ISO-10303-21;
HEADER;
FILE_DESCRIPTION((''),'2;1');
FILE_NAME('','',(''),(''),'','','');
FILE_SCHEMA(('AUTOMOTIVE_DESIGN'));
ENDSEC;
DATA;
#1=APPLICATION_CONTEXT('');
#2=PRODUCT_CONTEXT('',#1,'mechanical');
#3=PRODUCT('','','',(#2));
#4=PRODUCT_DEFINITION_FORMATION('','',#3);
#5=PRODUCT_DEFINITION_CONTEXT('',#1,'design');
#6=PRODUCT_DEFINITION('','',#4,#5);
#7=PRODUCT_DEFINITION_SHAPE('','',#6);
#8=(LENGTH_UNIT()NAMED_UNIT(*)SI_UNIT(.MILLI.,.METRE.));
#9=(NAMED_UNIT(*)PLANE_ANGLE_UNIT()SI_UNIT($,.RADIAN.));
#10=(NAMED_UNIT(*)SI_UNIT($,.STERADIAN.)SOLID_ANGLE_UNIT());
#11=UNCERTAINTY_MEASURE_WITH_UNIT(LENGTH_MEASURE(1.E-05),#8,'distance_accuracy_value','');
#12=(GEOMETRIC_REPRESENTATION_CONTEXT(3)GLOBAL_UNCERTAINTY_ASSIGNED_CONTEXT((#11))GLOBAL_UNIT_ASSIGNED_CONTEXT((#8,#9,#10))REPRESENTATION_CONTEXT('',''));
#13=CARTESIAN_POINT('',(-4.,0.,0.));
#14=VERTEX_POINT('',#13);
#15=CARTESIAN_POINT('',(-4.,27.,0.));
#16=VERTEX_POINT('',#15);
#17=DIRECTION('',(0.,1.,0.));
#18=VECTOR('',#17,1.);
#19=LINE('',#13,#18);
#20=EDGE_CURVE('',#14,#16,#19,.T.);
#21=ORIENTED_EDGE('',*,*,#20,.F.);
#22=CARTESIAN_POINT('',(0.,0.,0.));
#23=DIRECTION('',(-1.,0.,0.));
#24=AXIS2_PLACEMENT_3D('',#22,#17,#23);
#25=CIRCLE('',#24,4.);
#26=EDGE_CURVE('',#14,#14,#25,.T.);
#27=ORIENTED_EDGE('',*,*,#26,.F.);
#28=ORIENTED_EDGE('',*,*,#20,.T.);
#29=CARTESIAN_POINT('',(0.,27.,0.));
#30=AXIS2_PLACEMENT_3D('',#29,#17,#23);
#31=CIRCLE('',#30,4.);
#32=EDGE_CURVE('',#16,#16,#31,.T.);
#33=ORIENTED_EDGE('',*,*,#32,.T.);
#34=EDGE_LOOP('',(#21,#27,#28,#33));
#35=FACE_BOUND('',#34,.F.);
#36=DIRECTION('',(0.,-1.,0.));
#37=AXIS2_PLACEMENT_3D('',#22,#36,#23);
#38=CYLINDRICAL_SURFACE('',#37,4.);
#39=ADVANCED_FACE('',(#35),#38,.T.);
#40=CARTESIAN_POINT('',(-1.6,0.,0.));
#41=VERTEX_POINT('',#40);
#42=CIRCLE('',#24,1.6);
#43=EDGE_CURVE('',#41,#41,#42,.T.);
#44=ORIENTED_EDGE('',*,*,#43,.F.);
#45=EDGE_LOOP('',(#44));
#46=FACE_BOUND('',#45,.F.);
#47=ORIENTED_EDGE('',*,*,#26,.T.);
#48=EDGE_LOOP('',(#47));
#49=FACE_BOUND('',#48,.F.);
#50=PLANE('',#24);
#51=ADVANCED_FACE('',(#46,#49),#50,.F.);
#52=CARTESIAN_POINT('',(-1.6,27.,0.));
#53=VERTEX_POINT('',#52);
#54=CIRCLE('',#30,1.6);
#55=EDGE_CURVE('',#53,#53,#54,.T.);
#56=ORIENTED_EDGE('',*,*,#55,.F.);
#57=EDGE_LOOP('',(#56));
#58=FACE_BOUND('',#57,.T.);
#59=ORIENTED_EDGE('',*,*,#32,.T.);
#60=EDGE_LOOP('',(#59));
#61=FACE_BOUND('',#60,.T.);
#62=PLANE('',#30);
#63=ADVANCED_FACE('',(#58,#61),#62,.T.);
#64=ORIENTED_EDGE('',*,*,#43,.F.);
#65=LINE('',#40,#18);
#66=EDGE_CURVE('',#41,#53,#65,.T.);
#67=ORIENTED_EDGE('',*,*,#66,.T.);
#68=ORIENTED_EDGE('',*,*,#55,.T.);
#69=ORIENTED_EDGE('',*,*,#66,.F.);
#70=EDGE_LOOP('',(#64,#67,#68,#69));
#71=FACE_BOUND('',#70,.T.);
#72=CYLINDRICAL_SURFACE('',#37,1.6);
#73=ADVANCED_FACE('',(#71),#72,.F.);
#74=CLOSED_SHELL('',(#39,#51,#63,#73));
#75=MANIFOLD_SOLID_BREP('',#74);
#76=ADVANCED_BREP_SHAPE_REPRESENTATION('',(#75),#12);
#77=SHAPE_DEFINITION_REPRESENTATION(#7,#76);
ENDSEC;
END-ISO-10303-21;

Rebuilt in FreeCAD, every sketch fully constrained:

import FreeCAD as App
import Part
import Sketcher
Q = App.Units.Quantity

doc = App.newDocument("Part")
body = doc.addObject("PartDesign::Body", "Body")

# Sketch on XZ plane
sketch1 = doc.addObject("Sketcher::SketchObject", "Sketch")
body.addObject(sketch1)
sketch1.AttachmentSupport = (doc.XZ_Plane, [""])
sketch1.MapMode = "FlatFace"
sketch1.addGeometry(Part.Circle(App.Vector(0, 0, 0), App.Vector(0, 0, 1), 4), False)
sketch1.addGeometry(Part.Circle(App.Vector(0, 0, 0), App.Vector(0, 0, 1), 1.6), False)
sketch1.addConstraint(Sketcher.Constraint("Coincident", 0, 3, -1, 1))
sketch1.addConstraint(Sketcher.Constraint("Coincident", 1, 3, -1, 1))
sketch1.addConstraint(Sketcher.Constraint("Diameter", 0, Q("8 mm")))
sketch1.addConstraint(Sketcher.Constraint("Diameter", 1, Q("3.2 mm")))
pad1 = doc.addObject("PartDesign::Pad", "Pad")
body.addObject(pad1)
pad1.Profile = sketch1
pad1.Length = 27
pad1.Reversed = True

doc.recompute()
